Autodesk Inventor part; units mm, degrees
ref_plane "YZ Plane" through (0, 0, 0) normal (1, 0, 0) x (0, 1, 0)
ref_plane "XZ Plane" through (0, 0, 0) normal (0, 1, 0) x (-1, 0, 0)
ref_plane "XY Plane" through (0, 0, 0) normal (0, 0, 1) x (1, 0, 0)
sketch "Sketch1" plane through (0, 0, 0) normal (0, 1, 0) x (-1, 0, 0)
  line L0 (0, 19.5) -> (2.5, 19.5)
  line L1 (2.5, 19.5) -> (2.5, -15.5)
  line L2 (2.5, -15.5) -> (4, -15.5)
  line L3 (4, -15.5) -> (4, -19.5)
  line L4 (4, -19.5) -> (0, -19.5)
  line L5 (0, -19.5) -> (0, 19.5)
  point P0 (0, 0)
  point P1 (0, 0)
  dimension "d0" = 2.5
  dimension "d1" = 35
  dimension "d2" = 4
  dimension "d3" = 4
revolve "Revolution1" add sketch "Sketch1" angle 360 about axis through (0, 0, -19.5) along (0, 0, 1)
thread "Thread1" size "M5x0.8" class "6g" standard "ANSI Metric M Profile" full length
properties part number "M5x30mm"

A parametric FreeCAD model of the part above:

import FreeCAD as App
import Part
import Sketcher
from FreeCAD import Vector


def add_polygon(sketch, points):
    """Adds a closed chain of lines whose ends are joined by coincident constraints."""
    first, n = sketch.GeometryCount, len(points)
    for a, b in zip(points, points[1:] + points[:1]):
        sketch.addGeometry(Part.LineSegment(App.Vector(*a, 0), App.Vector(*b, 0)), False)
    for i in range(n):
        sketch.addConstraint(Sketcher.Constraint("Coincident", first + i, 2, first + (i + 1) % n, 1))

doc = App.newDocument("Part")
params = doc.addObject("Spreadsheet::Sheet", "Params")
for row, (alias, value) in enumerate([
    ("sketch1_width", "4 mm"),
    ("sketch1_height", "35 mm"),
    ("sketch1_width2", "2.5 mm"),
    ("revolution_angle", "360 deg"),
], start=1):
    params.set(f"A{row}", alias)
    params.set(f"B{row}", "=" + value)
    params.setAlias(f"B{row}", alias)

body = doc.addObject("PartDesign::Body", "Body")

# Sketch on XZ plane
sketch1 = body.newObject("Sketcher::SketchObject", "Sketch")
sketch1.AttachmentSupport = (doc.getObject("XZ_Plane"), [""])
sketch1.MapMode = "FlatFace"
add_polygon(sketch1, [(-2.5, 19.5), (0, 19.5), (0, -19.5), (-4, -19.5), (-4, -15.5), (-2.5, -15.5)])  # lines 0-5
sketch1.addConstraint([
    Sketcher.Constraint("Horizontal", 0),
    Sketcher.Constraint("Vertical", 1),
    Sketcher.Constraint("Horizontal", 2),
    Sketcher.Constraint("Vertical", 3),
    Sketcher.Constraint("Horizontal", 4),
    Sketcher.Constraint("Vertical", 5),
    Sketcher.Constraint("Symmetric", 0, 2, 1, 2, -1, 1),
    Sketcher.Constraint("Equal", 2, 3),
    Sketcher.Constraint("DistanceX", 2, 2, 2, 1, 4.0),
    Sketcher.Constraint("DistanceY", 5, 1, 5, 2, 35.0),
    Sketcher.Constraint("DistanceX", 0, 1, 0, 2, 2.5),
])
sketch1.setExpression("Constraints[14]", "Params.sketch1_width")
sketch1.setExpression("Constraints[15]", "Params.sketch1_height")
sketch1.setExpression("Constraints[16]", "Params.sketch1_width2")
revolution = body.newObject("PartDesign::Revolution", "Revolution")
revolution.Profile = sketch1
revolution.ReferenceAxis = (sketch1, ["V_Axis"])
revolution.setExpression("Angle", "Params.revolution_angle")

doc.recompute()
